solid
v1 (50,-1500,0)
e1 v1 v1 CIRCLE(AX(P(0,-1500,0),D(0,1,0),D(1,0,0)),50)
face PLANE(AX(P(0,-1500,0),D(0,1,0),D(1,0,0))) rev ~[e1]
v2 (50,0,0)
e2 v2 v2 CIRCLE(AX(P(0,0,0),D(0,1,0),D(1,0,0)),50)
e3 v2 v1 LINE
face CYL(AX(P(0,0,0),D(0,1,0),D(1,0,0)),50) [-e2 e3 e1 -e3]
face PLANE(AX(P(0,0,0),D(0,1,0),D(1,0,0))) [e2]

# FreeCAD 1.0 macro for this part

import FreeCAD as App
import Part
import Sketcher
from FreeCAD import Vector
Q = App.Units.Quantity

doc = App.newDocument("Part")
params = doc.addObject("Spreadsheet::Sheet", "Params")
for row, (alias, value) in enumerate([
    ("sketch1_diameter", "100 mm"),
    ("pad1_length", "1500 mm"),
], start=1):
    params.set(f"A{row}", alias)
    params.set(f"B{row}", "=" + value)
    params.setAlias(f"B{row}", alias)

body = doc.addObject("PartDesign::Body", "Body")

# Sketch on XZ plane
sketch1 = doc.addObject("Sketcher::SketchObject", "Sketch")
body.addObject(sketch1)
sketch1.AttachmentSupport = (doc.XZ_Plane, [""])
sketch1.MapMode = "FlatFace"
sketch1.addGeometry(Part.Circle(Vector(0, 0, 0), Vector(0, 0, 1), 50), False)
sketch1.addConstraint(Sketcher.Constraint("Coincident", 0, 3, -1, 1))
sketch1.addConstraint(Sketcher.Constraint("Diameter", 0, Q("100 mm")))
sketch1.setExpression("Constraints[1]", "Params.sketch1_diameter")
pad1 = doc.addObject("PartDesign::Pad", "Pad")
body.addObject(pad1)
pad1.Profile = sketch1
pad1.setExpression("Length", "Params.pad1_length")

doc.recompute()
